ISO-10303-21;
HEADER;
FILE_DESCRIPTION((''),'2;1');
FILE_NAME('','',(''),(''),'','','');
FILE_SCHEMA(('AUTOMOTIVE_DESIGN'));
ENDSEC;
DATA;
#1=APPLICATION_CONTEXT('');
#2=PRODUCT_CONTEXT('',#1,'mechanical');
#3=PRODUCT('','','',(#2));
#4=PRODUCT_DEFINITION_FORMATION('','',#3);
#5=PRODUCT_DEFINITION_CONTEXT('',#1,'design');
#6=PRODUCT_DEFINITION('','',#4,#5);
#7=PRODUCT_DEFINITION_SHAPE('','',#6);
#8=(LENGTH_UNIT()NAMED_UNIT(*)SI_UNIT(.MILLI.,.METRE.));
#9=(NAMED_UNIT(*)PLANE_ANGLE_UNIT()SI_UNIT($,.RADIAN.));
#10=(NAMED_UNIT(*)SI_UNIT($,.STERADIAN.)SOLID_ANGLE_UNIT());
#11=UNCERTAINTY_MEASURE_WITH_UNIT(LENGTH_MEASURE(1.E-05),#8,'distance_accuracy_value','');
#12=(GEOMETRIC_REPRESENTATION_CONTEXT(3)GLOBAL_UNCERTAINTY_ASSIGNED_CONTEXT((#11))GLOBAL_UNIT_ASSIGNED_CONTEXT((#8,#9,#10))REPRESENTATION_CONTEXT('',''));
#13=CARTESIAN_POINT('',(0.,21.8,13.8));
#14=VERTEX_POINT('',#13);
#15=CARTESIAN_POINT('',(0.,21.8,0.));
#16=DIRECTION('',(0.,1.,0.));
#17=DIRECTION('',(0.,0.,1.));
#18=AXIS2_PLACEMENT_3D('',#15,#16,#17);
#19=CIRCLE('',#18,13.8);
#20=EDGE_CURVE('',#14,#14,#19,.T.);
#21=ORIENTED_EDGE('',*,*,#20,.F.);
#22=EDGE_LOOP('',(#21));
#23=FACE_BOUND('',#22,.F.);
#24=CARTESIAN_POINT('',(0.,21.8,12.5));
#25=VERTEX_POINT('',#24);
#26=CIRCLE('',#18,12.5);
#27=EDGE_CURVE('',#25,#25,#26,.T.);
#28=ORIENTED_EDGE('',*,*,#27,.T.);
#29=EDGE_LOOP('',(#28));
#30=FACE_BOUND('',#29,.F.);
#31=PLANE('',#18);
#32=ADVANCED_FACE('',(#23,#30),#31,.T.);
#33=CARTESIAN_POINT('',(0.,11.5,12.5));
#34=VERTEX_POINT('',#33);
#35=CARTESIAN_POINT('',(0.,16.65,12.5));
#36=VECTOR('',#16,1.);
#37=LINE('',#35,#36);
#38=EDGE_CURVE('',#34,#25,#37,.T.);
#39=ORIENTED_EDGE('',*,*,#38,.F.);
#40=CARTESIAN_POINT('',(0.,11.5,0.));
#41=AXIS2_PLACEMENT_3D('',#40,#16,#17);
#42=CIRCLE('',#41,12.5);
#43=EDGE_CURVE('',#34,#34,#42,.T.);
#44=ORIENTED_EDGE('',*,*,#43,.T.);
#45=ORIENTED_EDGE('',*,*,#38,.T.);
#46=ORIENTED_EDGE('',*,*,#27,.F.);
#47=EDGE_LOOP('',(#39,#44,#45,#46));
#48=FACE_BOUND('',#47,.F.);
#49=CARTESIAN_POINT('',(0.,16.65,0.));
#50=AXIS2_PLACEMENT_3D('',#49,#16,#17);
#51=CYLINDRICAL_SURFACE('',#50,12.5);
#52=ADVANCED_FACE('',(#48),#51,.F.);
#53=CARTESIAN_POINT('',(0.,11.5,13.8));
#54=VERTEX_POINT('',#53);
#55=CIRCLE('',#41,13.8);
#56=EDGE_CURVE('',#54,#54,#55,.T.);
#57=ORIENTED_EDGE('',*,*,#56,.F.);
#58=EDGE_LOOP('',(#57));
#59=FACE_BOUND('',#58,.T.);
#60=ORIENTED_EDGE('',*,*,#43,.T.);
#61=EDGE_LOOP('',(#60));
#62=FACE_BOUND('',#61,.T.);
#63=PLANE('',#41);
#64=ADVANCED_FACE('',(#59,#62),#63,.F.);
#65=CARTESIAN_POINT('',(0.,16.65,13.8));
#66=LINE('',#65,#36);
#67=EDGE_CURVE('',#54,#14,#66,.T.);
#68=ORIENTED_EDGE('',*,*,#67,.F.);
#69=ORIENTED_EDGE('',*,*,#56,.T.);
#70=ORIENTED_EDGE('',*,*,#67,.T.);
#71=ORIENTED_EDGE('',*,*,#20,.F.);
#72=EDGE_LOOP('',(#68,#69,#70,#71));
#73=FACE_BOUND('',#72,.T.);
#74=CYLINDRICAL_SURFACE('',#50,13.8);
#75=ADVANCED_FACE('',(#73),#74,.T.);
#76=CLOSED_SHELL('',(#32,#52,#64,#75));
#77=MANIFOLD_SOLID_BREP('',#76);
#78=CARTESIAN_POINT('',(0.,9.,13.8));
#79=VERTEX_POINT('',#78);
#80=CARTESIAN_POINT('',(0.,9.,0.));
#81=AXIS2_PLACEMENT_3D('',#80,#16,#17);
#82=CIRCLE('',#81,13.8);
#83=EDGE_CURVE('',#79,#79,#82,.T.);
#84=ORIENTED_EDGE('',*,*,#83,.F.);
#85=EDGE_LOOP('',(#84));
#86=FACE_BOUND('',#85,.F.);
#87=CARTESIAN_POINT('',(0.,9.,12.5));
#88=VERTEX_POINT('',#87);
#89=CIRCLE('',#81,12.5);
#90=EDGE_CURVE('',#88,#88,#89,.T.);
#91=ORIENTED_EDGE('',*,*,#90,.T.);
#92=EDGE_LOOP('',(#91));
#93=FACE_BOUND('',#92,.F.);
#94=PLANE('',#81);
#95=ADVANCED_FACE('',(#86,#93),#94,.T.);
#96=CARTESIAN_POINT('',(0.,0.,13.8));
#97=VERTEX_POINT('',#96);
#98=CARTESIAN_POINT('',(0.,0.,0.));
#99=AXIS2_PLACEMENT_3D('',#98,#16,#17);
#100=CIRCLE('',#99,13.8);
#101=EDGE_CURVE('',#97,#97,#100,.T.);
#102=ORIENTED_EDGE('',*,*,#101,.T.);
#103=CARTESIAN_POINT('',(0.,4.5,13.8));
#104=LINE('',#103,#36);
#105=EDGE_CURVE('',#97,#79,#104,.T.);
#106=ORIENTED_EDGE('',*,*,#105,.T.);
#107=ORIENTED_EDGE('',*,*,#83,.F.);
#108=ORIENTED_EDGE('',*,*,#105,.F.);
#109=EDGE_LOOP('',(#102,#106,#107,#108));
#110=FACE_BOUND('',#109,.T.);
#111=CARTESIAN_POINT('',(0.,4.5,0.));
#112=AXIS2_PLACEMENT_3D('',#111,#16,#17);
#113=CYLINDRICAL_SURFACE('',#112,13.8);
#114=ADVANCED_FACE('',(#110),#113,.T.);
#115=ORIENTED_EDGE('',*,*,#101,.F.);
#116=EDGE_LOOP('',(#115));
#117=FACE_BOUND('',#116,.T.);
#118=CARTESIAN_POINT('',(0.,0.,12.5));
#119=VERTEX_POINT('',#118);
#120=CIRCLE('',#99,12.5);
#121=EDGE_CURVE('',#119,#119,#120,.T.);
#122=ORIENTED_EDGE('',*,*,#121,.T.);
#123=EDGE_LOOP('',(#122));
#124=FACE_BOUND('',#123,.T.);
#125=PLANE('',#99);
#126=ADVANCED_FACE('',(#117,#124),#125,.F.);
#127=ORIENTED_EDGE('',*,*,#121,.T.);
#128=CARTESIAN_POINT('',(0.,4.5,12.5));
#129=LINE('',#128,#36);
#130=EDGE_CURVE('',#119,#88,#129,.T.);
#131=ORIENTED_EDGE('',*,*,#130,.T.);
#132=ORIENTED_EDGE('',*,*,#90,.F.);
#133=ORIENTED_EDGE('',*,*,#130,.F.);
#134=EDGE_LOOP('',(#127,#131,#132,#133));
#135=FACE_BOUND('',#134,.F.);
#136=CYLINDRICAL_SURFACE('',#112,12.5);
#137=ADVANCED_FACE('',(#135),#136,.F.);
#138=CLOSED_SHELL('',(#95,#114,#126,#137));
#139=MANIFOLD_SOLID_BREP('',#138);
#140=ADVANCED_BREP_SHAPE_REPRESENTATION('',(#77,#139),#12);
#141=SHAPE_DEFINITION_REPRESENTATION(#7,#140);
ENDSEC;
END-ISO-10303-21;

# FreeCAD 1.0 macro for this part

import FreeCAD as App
import Part
import Sketcher

V = App.Vector
Q = App.Units.Quantity


def add_polygon(sketch, points):
    """Adds a closed chain of lines whose ends are joined by coincident constraints."""
    first, n = sketch.GeometryCount, len(points)
    for a, b in zip(points, points[1:] + points[:1]):
        sketch.addGeometry(Part.LineSegment(App.Vector(*a, 0), App.Vector(*b, 0)), False)
    for i in range(n):
        sketch.addConstraint(Sketcher.Constraint("Coincident", first + i, 2, first + (i + 1) % n, 1))

doc = App.newDocument("Part")
body = doc.addObject("PartDesign::Body", "Body")
body.AllowCompound = True

# Sketch on YZ plane
sketch1 = body.newObject("Sketcher::SketchObject", "Sketch")
sketch1.AttachmentSupport = (doc.getObject("YZ_Plane"), [""])
sketch1.MapMode = "FlatFace"
add_polygon(sketch1, [(0, 13.8), (0, 12.5), (9, 12.5), (9, 13.8)])  # lines 0-3
add_polygon(sketch1, [(11.5, 13.8), (11.5, 12.5), (21.8, 12.5), (21.8, 13.8)])  # lines 4-7
sketch1.addConstraint([
    Sketcher.Constraint("Vertical", 0),
    Sketcher.Constraint("Horizontal", 1),
    Sketcher.Constraint("Vertical", 2),
    Sketcher.Constraint("Horizontal", 3),
    Sketcher.Constraint("Vertical", 4),
    Sketcher.Constraint("Horizontal", 5),
    Sketcher.Constraint("Vertical", 6),
    Sketcher.Constraint("Horizontal", 7),
    Sketcher.Constraint("PointOnObject", 0, 2, -2),
    Sketcher.Constraint("Horizontal", 1, 2, 4, 2),
    Sketcher.Constraint("Horizontal", 3, 2, 6, 2),
    Sketcher.Constraint("DistanceX", 1, 1, 1, 2, Q("9 mm")),
    Sketcher.Constraint("DistanceX", 5, 1, 5, 2, Q("10.3 mm")),
    Sketcher.Constraint("DistanceY", 0, 2, 0, 1, Q("1.3 mm")),
    Sketcher.Constraint("DistanceY", -1, 1, 0, 2, Q("12.5 mm")),
    Sketcher.Constraint("DistanceX", -1, 1, 4, 2, Q("11.5 mm")),
])
revolution = body.newObject("PartDesign::Revolution", "Revolution")
revolution.Profile = sketch1
revolution.ReferenceAxis = (sketch1, ["H_Axis"])
revolution.Angle = 360

doc.recompute()
